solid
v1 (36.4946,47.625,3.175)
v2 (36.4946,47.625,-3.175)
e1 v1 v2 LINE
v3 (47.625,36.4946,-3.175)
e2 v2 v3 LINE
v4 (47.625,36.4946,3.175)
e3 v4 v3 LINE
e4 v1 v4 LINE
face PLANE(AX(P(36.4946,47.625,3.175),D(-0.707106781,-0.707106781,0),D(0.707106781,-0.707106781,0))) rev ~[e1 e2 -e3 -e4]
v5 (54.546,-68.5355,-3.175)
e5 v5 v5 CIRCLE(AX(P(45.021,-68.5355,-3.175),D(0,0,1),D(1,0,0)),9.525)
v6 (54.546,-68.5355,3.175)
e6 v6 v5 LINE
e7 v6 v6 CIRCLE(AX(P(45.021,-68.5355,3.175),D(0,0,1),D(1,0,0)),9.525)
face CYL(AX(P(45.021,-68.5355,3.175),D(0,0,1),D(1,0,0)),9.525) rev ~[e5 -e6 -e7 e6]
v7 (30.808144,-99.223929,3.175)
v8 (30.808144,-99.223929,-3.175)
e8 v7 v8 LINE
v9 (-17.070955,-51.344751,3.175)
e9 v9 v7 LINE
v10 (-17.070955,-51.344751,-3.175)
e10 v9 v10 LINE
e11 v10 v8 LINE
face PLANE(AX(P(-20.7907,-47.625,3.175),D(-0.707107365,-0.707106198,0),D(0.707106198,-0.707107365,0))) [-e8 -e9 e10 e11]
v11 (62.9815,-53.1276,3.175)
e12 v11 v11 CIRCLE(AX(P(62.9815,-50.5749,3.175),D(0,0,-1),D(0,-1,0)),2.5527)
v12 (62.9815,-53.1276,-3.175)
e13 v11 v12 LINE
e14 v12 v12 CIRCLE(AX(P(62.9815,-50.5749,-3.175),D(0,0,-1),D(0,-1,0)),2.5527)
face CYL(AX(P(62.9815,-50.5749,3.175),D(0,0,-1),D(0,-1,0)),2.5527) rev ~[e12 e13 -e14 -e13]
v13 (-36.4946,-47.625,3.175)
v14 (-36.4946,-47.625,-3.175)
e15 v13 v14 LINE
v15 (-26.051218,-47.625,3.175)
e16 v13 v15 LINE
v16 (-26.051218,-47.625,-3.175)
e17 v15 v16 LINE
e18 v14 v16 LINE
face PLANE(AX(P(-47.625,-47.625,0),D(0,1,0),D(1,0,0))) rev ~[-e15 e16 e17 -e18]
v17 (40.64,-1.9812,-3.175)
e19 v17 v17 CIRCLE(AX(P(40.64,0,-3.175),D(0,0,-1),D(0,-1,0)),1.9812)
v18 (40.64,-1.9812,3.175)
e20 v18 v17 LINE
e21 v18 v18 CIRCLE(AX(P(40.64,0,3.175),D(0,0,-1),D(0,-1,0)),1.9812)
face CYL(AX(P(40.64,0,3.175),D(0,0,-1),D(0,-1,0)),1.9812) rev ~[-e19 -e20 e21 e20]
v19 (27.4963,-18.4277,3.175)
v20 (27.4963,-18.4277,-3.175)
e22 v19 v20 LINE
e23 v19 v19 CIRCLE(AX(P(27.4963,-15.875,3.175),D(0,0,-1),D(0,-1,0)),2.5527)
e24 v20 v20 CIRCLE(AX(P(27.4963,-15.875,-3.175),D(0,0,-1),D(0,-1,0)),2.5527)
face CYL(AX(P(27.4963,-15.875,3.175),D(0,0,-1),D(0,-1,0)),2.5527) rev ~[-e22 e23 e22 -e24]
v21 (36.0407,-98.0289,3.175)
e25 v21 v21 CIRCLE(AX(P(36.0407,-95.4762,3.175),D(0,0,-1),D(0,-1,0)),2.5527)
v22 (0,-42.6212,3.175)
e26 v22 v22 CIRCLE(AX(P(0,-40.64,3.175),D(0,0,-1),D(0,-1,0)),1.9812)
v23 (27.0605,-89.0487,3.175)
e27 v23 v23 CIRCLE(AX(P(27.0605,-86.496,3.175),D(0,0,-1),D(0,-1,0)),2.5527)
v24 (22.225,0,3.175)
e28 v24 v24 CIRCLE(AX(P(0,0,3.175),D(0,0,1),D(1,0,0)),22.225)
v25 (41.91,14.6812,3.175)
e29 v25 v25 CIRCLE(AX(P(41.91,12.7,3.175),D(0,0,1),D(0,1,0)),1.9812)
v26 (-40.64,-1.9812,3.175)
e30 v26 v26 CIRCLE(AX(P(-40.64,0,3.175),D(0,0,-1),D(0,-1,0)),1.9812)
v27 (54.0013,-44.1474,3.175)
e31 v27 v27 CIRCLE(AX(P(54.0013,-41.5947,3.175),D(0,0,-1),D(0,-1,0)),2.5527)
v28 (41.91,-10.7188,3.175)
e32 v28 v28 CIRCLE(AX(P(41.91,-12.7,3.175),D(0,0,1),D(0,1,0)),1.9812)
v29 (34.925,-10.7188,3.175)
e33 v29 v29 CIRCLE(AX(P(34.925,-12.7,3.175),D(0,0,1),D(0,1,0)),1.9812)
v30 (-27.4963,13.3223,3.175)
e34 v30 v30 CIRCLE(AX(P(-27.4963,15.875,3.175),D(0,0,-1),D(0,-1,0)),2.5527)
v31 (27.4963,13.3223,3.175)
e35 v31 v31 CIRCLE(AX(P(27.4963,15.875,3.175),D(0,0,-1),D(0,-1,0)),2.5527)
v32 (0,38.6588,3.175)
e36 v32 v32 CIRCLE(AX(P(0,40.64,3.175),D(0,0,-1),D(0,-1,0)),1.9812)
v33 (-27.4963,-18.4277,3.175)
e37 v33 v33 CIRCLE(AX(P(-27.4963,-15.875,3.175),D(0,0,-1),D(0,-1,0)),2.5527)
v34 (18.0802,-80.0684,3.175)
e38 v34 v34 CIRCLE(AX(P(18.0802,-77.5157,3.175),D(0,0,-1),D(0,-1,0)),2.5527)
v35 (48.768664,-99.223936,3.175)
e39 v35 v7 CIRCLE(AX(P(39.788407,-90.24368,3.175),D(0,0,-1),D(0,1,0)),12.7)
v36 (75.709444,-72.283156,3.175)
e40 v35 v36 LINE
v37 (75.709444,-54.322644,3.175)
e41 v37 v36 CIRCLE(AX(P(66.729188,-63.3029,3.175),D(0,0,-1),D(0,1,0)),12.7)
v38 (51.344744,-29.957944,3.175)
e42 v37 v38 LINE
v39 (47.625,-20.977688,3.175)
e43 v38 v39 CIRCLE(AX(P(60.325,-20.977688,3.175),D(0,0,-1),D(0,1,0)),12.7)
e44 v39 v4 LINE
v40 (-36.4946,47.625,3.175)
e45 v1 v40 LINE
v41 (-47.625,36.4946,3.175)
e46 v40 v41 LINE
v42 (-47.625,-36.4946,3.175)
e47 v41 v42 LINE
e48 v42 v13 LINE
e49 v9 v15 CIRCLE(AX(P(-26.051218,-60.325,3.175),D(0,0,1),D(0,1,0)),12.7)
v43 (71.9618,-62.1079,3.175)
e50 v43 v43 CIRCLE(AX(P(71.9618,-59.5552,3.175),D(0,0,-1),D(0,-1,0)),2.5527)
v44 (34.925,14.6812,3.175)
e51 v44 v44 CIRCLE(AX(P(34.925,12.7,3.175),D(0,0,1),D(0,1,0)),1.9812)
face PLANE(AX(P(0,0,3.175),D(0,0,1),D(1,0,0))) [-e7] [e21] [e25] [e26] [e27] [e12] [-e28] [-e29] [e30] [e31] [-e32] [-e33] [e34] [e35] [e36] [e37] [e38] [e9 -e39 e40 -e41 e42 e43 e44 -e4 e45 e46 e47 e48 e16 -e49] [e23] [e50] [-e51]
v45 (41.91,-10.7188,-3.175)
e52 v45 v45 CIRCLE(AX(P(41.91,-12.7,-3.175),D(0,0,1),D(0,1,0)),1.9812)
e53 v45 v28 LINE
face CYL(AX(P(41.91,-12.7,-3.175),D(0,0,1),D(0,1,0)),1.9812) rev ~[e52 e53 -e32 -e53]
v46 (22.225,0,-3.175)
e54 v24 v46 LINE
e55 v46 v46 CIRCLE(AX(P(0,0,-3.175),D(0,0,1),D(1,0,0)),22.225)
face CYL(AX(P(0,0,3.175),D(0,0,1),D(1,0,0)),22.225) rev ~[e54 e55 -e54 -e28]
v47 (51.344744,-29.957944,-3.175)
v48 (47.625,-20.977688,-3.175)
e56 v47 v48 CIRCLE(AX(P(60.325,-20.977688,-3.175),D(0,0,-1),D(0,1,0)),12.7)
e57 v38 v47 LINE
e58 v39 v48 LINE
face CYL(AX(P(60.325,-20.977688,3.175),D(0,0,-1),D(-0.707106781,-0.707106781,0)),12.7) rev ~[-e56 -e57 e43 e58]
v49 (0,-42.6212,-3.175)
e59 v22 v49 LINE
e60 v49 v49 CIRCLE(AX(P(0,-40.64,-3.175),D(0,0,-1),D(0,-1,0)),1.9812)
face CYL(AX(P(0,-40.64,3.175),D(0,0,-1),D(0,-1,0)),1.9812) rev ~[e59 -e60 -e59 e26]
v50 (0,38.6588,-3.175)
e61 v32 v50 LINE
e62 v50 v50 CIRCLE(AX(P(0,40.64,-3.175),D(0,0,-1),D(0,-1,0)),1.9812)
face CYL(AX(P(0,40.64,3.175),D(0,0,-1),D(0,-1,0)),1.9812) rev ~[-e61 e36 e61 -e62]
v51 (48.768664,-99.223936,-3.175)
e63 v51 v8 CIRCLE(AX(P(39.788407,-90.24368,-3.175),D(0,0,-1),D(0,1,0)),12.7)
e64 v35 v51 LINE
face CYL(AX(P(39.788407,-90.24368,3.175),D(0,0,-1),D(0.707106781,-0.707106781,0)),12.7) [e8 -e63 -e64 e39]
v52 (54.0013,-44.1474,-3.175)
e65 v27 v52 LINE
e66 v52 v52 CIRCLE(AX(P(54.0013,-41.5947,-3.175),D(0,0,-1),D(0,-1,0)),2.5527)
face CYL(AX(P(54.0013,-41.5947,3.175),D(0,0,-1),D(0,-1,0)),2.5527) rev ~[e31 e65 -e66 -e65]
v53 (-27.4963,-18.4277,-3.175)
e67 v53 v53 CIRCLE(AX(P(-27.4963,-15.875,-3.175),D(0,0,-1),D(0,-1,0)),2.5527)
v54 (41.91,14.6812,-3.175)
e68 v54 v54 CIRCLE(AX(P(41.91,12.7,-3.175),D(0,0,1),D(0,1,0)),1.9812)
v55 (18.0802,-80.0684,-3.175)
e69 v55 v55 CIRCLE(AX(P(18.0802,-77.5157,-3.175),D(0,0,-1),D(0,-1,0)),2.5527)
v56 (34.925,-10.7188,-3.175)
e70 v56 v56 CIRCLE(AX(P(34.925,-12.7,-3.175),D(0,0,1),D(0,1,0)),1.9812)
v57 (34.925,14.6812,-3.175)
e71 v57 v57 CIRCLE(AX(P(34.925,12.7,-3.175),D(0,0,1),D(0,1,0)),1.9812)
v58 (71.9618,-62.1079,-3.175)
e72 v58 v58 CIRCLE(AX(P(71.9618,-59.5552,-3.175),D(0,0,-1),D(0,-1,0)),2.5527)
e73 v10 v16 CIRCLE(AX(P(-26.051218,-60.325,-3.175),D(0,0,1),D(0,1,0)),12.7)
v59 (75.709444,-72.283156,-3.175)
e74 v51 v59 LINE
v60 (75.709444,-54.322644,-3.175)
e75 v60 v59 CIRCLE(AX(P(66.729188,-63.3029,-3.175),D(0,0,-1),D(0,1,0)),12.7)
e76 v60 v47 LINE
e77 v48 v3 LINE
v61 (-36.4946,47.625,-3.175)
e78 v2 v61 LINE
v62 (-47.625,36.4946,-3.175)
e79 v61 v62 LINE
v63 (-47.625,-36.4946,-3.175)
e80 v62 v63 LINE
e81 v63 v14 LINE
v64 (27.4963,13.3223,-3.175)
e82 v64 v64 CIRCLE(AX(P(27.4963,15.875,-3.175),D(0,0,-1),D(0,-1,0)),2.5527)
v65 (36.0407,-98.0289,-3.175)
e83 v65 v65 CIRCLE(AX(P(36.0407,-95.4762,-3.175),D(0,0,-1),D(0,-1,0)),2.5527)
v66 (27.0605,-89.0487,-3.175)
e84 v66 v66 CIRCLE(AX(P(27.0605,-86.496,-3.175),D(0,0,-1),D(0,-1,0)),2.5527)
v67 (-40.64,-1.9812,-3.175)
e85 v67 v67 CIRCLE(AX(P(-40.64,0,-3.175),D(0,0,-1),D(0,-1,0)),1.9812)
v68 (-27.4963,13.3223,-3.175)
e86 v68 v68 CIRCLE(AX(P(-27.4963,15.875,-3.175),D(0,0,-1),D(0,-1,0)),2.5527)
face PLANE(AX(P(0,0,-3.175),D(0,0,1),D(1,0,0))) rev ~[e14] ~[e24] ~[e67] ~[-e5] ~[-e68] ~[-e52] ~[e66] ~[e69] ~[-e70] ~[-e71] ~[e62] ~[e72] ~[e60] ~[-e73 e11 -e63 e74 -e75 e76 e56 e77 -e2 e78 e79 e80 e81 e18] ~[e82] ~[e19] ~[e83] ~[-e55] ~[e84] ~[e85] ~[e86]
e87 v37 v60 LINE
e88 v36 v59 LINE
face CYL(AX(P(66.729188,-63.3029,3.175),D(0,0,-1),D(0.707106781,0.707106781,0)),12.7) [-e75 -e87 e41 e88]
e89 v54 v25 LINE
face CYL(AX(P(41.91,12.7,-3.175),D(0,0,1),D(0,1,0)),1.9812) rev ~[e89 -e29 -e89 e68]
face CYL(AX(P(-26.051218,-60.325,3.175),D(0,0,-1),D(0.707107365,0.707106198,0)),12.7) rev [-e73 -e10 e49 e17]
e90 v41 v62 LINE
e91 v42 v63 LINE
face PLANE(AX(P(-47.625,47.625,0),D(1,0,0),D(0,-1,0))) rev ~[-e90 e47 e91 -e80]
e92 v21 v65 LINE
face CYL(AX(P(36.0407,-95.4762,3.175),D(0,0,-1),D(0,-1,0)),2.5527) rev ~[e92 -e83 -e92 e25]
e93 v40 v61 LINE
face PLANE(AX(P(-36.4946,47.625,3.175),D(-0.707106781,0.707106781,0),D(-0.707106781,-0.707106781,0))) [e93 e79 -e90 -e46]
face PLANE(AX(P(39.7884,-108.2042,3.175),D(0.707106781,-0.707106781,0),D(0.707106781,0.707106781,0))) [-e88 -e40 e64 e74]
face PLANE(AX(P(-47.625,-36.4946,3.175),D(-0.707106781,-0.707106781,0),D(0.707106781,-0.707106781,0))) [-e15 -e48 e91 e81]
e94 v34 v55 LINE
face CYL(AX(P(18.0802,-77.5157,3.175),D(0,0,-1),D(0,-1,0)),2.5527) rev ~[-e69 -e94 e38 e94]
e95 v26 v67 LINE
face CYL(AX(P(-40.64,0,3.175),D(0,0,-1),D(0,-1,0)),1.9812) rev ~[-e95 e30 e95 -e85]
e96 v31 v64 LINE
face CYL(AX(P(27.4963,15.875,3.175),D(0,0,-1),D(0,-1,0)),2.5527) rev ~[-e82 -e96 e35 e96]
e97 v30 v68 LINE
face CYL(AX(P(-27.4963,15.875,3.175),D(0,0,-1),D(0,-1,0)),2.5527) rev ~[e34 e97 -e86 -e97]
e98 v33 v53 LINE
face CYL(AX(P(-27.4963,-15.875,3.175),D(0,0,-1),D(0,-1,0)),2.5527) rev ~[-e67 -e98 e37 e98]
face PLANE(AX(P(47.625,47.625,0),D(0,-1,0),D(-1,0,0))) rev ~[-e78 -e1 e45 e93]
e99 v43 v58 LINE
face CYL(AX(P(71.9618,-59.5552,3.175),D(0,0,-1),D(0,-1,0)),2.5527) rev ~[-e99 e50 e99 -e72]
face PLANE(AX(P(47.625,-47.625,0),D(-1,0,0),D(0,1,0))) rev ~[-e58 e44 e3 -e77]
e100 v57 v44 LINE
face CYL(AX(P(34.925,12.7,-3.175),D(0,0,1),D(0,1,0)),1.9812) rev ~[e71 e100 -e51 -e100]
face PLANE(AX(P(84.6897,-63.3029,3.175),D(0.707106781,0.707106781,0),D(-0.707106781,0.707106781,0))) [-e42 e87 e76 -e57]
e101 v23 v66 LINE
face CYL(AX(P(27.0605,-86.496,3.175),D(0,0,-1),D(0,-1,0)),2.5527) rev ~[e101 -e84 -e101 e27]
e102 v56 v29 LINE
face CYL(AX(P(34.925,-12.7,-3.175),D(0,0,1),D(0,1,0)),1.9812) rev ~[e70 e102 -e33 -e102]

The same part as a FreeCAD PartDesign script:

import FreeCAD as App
import Part
import Sketcher
from FreeCAD import Vector
Q = App.Units.Quantity


def edges_at(feature, points):
    """Names of the edges that pass closest to the given points."""
    edges = feature.Shape.Edges
    near = lambda p: min(range(len(edges)), key=lambda i: edges[i].distToShape(Part.Vertex(*p))[0])
    return sorted({f"Edge{near(p) + 1}" for p in points})

doc = App.newDocument("Part")
body = doc.addObject("PartDesign::Body", "Body")

# Sketch on XY plane
sketch1 = body.newObject("Sketcher::SketchObject", "Sketch")
sketch1.AttachmentSupport = (doc.getObject("XY_Plane"), [""])
sketch1.MapMode = "FlatFace"
sketch1.addGeometry([
    Part.LineSegment(Vector(-48, 48, 0), Vector(-48, -48, 0)),
    Part.LineSegment(Vector(-48, -48, 0), Vector(48, -48, 0)),
    Part.LineSegment(Vector(48, -48, 0), Vector(48, 48, 0)),
    Part.LineSegment(Vector(48, 48, 0), Vector(-48, 48, 0)),
], False)
sketch1.addConstraint([
    Sketcher.Constraint("Coincident", 0, 2, 1, 1),
    Sketcher.Constraint("Coincident", 1, 2, 2, 1),
    Sketcher.Constraint("Coincident", 2, 2, 3, 1),
    Sketcher.Constraint("Coincident", 3, 2, 0, 1),
    Sketcher.Constraint("Vertical", 0),
    Sketcher.Constraint("Horizontal", 1),
    Sketcher.Constraint("Vertical", 2),
    Sketcher.Constraint("Horizontal", 3),
    Sketcher.Constraint("Symmetric", 0, 2, 2, 2, -1, 1),
    Sketcher.Constraint("Equal", 3, 0),
    Sketcher.Constraint("DistanceX", 1, 1, 1, 2, Q("3.75 in")),
])
pad1 = body.newObject("PartDesign::Pad", "Pad")
pad1.Profile = sketch1
pad1.Length = Q("0.25 in")
pad1.Midplane = True

# Sketch on XY plane
sketch2 = body.newObject("Sketcher::SketchObject", "Sketch001")
sketch2.AttachmentSupport = (doc.getObject("XY_Plane"), [""])
sketch2.MapMode = "FlatFace"
sketch2.AttachmentOffset = App.Placement(Vector(0, 0, 0.125 * 25.4), App.Rotation())
sketch2.addGeometry([
    Part.Circle(Vector(0, 40.6, 0), Vector(0, 0, 1), 2),
    Part.Circle(Vector(-40.6, 0, 0), Vector(0, 0, 1), 2),
    Part.Circle(Vector(0, -40.6, 0), Vector(0, 0, 1), 2),
    Part.Circle(Vector(40.6, 0, 0), Vector(0, 0, 1), 2),
], False)
sketch2.addConstraint([
    Sketcher.Constraint("Equal", 0, 1),
    Sketcher.Constraint("Equal", 1, 2),
    Sketcher.Constraint("Equal", 2, 3),
    Sketcher.Constraint("Symmetric", 0, 3, 2, 3, -1, 1),
    Sketcher.Constraint("Symmetric", 1, 3, 3, 3, -1, 1),
    Sketcher.Constraint("PointOnObject", 0, 3, -2),
    Sketcher.Constraint("PointOnObject", 1, 3, -1),
    Sketcher.Constraint("Diameter", 0, Q("0.156 in")),
    Sketcher.Constraint("DistanceY", -1, 1, 0, 3, Q("1.6 in")),
    Sketcher.Constraint("DistanceX", 1, 3, -1, 1, Q("1.6 in")),
])
doc.recompute()
hole = body.newObject("PartDesign::Hole", "Hole")
hole.Profile = sketch2
hole.ThreadType = "None"
hole.Diameter = Q("0.156 in")
hole.DepthType = "ThroughAll"

# Sketch on XY plane
sketch3 = body.newObject("Sketcher::SketchObject", "Sketch002")
sketch3.AttachmentSupport = (doc.getObject("XY_Plane"), [""])
sketch3.MapMode = "FlatFace"
sketch3.AttachmentOffset = App.Placement(Vector(0, 0, 0.125 * 25.4), App.Rotation())
sketch3.addGeometry([
    Part.Circle(Vector(-27.5, 15.9, 0), Vector(0, 0, 1), 2.6),
    Part.Circle(Vector(-27.5, -15.9, 0), Vector(0, 0, 1), 2.6),
    Part.Circle(Vector(27.5, -15.9, 0), Vector(0, 0, 1), 2.6),
    Part.Circle(Vector(27.5, 15.9, 0), Vector(0, 0, 1), 2.6),
], False)
sketch3.addConstraint([
    Sketcher.Constraint("Equal", 0, 1),
    Sketcher.Constraint("Equal", 1, 2),
    Sketcher.Constraint("Equal", 2, 3),
    Sketcher.Constraint("Symmetric", 0, 3, 2, 3, -1, 1),
    Sketcher.Constraint("Symmetric", 1, 3, 3, 3, -1, 1),
    Sketcher.Constraint("Symmetric", 1, 3, 2, 3, -2),
    Sketcher.Constraint("Diameter", 0, Q("0.201 in")),
    Sketcher.Constraint("DistanceY", 1, 3, 0, 3, Q("1.25 in")),
    Sketcher.Constraint("DistanceX", 0, 3, -1, 1, 27.4963),
])
doc.recompute()
hole2 = body.newObject("PartDesign::Hole", "Hole001")
hole2.Profile = sketch3
hole2.ThreadType = "None"
hole2.Diameter = Q("0.201 in")
hole2.DepthType = "ThroughAll"

# Sketch on XY plane
sketch4 = body.newObject("Sketcher::SketchObject", "Sketch003")
sketch4.AttachmentSupport = (doc.getObject("XY_Plane"), [""])
sketch4.MapMode = "FlatFace"
sketch4.AttachmentOffset = App.Placement(Vector(0, 0, 0.125 * 25.4), App.Rotation())
sketch4.addGeometry(Part.Circle(Vector(0, 0, 0), Vector(0, 0, 1), 22), False)
sketch4.addConstraint([
    Sketcher.Constraint("Coincident", 0, 3, -1, 1),
    Sketcher.Constraint("Diameter", 0, Q("1.75 in")),
])
pocket1 = body.newObject("PartDesign::Pocket", "Pocket")
pocket1.Profile = sketch4
pocket1.Type = "ThroughAll"

# Sketch on XY plane
sketch5 = body.newObject("Sketcher::SketchObject", "Sketch004")
sketch5.AttachmentSupport = (doc.getObject("XY_Plane"), [""])
sketch5.MapMode = "FlatFace"
sketch5.AttachmentOffset = App.Placement(Vector(0, 0, 0.125 * 25.4), App.Rotation())
sketch5.addGeometry([
    Part.LineSegment(Vector(48, -48, 0), Vector(-21, -48, 0)),  # 0
    Part.LineSegment(Vector(-21, -48, 0), Vector(40, -108, 0)),  # 1
    Part.LineSegment(Vector(40, -108, 0), Vector(85, -63, 0)),  # 2
    Part.LineSegment(Vector(85, -63, 0), Vector(48, -26, 0)),  # 3
    Part.LineSegment(Vector(48, -26, 0), Vector(48, -48, 0)),  # 4
    Part.Circle(Vector(45, -69, 0), Vector(0, 0, 1), 10),  # 5
], False)
sketch5.addConstraint([
    Sketcher.Constraint("Coincident", 0, 2, 1, 1),
    Sketcher.Constraint("Coincident", 1, 2, 2, 1),
    Sketcher.Constraint("Coincident", 2, 2, 3, 1),
    Sketcher.Constraint("Coincident", 3, 2, 4, 1),
    Sketcher.Constraint("Coincident", 4, 2, 0, 1),
    Sketcher.Constraint("Horizontal", 0),
    Sketcher.Constraint("Vertical", 4),
    Sketcher.Constraint("Perpendicular", 1, 2),
    Sketcher.Constraint("Perpendicular", 2, 3),
    Sketcher.Constraint("Diameter", 5, Q("0.75 in")),
    Sketcher.Constraint("Angle", 1, Q("-45 deg")),
    Sketcher.Constraint("Distance", 2, Q("2.5 in")),
    Sketcher.Constraint("DistanceY", 4, 2, 4, 1, Q("0.842 in")),
    Sketcher.Constraint("DistanceY", 1, 2, -1, 1, Q("4.26 in")),
    Sketcher.Constraint("DistanceY", 0, 2, -1, 1, Q("1.875 in")),
    Sketcher.Constraint("DistanceX", -1, 1, 3, 2, Q("1.875 in")),
    Sketcher.Constraint("DistanceX", 0, 2, 5, 3, Q("2.591 in")),
    Sketcher.Constraint("DistanceY", 5, 3, 2, 2, Q("0.206 in")),
])
pad2 = body.newObject("PartDesign::Pad", "Pad001")
pad2.Profile = sketch5
pad2.Length = Q("0.25 in")
pad2.Reversed = True

# Sketch on XY plane
sketch6 = body.newObject("Sketcher::SketchObject", "Sketch005")
sketch6.AttachmentSupport = (doc.getObject("XY_Plane"), [""])
sketch6.MapMode = "FlatFace"
sketch6.AttachmentOffset = App.Placement(Vector(0, 0, 0.125 * 25.4), App.Rotation())
sketch6.addGeometry([
    Part.Circle(Vector(18.1, -77.5, 0), Vector(0, 0, 1), 2.6),  # 0
    Part.Circle(Vector(27.1, -86.5, 0), Vector(0, 0, 1), 2.6),  # 1
    Part.Circle(Vector(36, -95.5, 0), Vector(0, 0, 1), 2.6),  # 2
    Part.Circle(Vector(54, -41.6, 0), Vector(0, 0, 1), 2.6),  # 3
    Part.Circle(Vector(72, -59.6, 0), Vector(0, 0, 1), 2.6),  # 4
    Part.Circle(Vector(63, -50.6, 0), Vector(0, 0, 1), 2.6),  # 5
], False)
sketch6.addConstraint([
    Sketcher.Constraint("Equal", 0, 1),
    Sketcher.Constraint("Equal", 1, 2),
    Sketcher.Constraint("Equal", 2, 3),
    Sketcher.Constraint("Equal", 3, 4),
    Sketcher.Constraint("Equal", 4, 5),
    Sketcher.Constraint("Diameter", 0, Q("0.201 in")),
    Sketcher.Constraint("DistanceY", 0, 3, -1, 1, Q("3.0518 in")),
    Sketcher.Constraint("DistanceY", 2, 3, -1, 1, Q("3.7589 in")),
    Sketcher.Constraint("DistanceY", 4, 3, -1, 1, Q("2.3447 in")),
    Sketcher.Constraint("DistanceX", 0, 3, 2, 3, Q("0.7071 in")),
    Sketcher.Constraint("DistanceX", 2, 3, 3, 3, Q("0.7071 in")),
    Sketcher.Constraint("DistanceX", 3, 3, 4, 3, Q("0.7071 in")),
    Sketcher.Constraint("DistanceY", 4, 3, 3, 3, Q("0.7071 in")),
    Sketcher.Constraint("DistanceX", -1, 1, 0, 3, 18.0802),
    Sketcher.Constraint("DistanceX", -1, 1, 1, 3, 27.0605),
    Sketcher.Constraint("DistanceY", 1, 3, -1, 1, 86.496),
    Sketcher.Constraint("DistanceX", -1, 1, 5, 3, 62.9815),
    Sketcher.Constraint("DistanceY", 5, 3, -1, 1, 50.575),
])
doc.recompute()
hole3 = body.newObject("PartDesign::Hole", "Hole002")
hole3.Profile = sketch6
hole3.ThreadType = "None"
hole3.Diameter = Q("0.201 in")
hole3.DepthType = "ThroughAll"
doc.recompute()

fillet = body.newObject("PartDesign::Fillet", "Fillet")
fillet.Base = (hole3, edges_at(hole3, [
    (47.625, -26.238, 0),
    (-20.791, -47.625, 0),
    (39.788, -108.204, 0),
    (84.69, -63.303, 0),
]))
fillet.Radius = Q("0.5 in")

# Sketch on XY plane
sketch7 = body.newObject("Sketcher::SketchObject", "Sketch006")
sketch7.AttachmentSupport = (doc.getObject("XY_Plane"), [""])
sketch7.MapMode = "FlatFace"
sketch7.AttachmentOffset = App.Placement(Vector(0, 0, 0.125 * 25.4), App.Rotation())
sketch7.addGeometry([
    Part.LineSegment(Vector(-48, 36, 0), Vector(-36, 48, 0)),  # 0
    Part.LineSegment(Vector(-36, 48, 0), Vector(-48, 48, 0)),  # 1
    Part.LineSegment(Vector(-48, 48, 0), Vector(-48, 36, 0)),  # 2
    Part.LineSegment(Vector(48, 48, 0), Vector(36, 48, 0)),  # 3
    Part.LineSegment(Vector(36, 48, 0), Vector(48, 36, 0)),  # 4
    Part.LineSegment(Vector(48, 36, 0), Vector(48, 48, 0)),  # 5
    Part.LineSegment(Vector(-36, -48, 0), Vector(-48, -36, 0)),  # 6
    Part.LineSegment(Vector(-48, -36, 0), Vector(-48, -48, 0)),  # 7
    Part.LineSegment(Vector(-48, -48, 0), Vector(-36, -48, 0)),  # 8
], False)
sketch7.addConstraint([
    Sketcher.Constraint("Coincident", 0, 2, 1, 1),
    Sketcher.Constraint("Coincident", 1, 2, 2, 1),
    Sketcher.Constraint("Coincident", 2, 2, 0, 1),
    Sketcher.Constraint("Coincident", 3, 2, 4, 1),
    Sketcher.Constraint("Coincident", 4, 2, 5, 1),
    Sketcher.Constraint("Coincident", 5, 2, 3, 1),
    Sketcher.Constraint("Coincident", 6, 2, 7, 1),
    Sketcher.Constraint("Coincident", 7, 2, 8, 1),
    Sketcher.Constraint("Coincident", 8, 2, 6, 1),
    Sketcher.Constraint("Horizontal", 1),
    Sketcher.Constraint("Vertical", 2),
    Sketcher.Constraint("Horizontal", 3),
    Sketcher.Constraint("Vertical", 5),
    Sketcher.Constraint("Vertical", 7),
    Sketcher.Constraint("Horizontal", 8),
    Sketcher.Constraint("Symmetric", 4, 2, 6, 2, -1, 1),
    Sketcher.Constraint("Symmetric", 3, 2, 8, 2, -1, 1),
    Sketcher.Constraint("Symmetric", 0, 2, 3, 2, -2),
    Sketcher.Constraint("Symmetric", 2, 2, 4, 2, -2),
    Sketcher.Constraint("Perpendicular", 0, 4),
    Sketcher.Constraint("DistanceX", 2, 2, 4, 2, Q("3.75 in")),
    Sketcher.Constraint("DistanceY", 7, 2, 1, 2, Q("3.75 in")),
    Sketcher.Constraint("DistanceX", 1, 2, 1, 1, Q("0.4382 in")),
])
pocket2 = body.newObject("PartDesign::Pocket", "Pocket001")
pocket2.Profile = sketch7
pocket2.Type = "ThroughAll"

# Sketch on XY plane
sketch8 = body.newObject("Sketcher::SketchObject", "Sketch007")
sketch8.AttachmentSupport = (doc.getObject("XY_Plane"), [""])
sketch8.MapMode = "FlatFace"
sketch8.AttachmentOffset = App.Placement(Vector(0, 0, -0.125 * 25.4), App.Rotation())
sketch8.addGeometry([
    Part.Circle(Vector(34.9, -12.7, 0), Vector(0, 0, 1), 2),
    Part.Circle(Vector(34.9, 12.7, 0), Vector(0, 0, 1), 2),
], False)
sketch8.addConstraint([
    Sketcher.Constraint("Equal", 0, 1),
    Sketcher.Constraint("Symmetric", 0, 3, 1, 3, -1),
    Sketcher.Constraint("Diameter", 0, Q("0.156 in")),
    Sketcher.Constraint("DistanceY", 0, 3, 1, 3, Q("1 in")),
    Sketcher.Constraint("DistanceX", -1, 1, 0, 3, Q("1.375 in")),
])
doc.recompute()
hole4 = body.newObject("PartDesign::Hole", "Hole003")
hole4.Profile = sketch8
hole4.ThreadType = "None"
hole4.Diameter = Q("0.156 in")
hole4.DepthType = "ThroughAll"
hole4.Reversed = True

# Sketch on XY plane
sketch9 = body.newObject("Sketcher::SketchObject", "Sketch008")
sketch9.AttachmentSupport = (doc.getObject("XY_Plane"), [""])
sketch9.MapMode = "FlatFace"
sketch9.AttachmentOffset = App.Placement(Vector(0, 0, -0.125 * 25.4), App.Rotation())
sketch9.addGeometry([
    Part.Circle(Vector(41.9, -12.7, 0), Vector(0, 0, 1), 2),
    Part.Circle(Vector(41.9, 12.7, 0), Vector(0, 0, 1), 2),
], False)
sketch9.addConstraint([
    Sketcher.Constraint("Equal", 0, 1),
    Sketcher.Constraint("Symmetric", 0, 3, 1, 3, -1),
    Sketcher.Constraint("Diameter", 0, Q("0.156 in")),
    Sketcher.Constraint("DistanceY", 0, 3, 1, 3, Q("1 in")),
    Sketcher.Constraint("DistanceX", -1, 1, 0, 3, Q("1.65 in")),
])
doc.recompute()
hole5 = body.newObject("PartDesign::Hole", "Hole004")
hole5.Profile = sketch9
hole5.ThreadType = "None"
hole5.Diameter = Q("0.156 in")
hole5.DepthType = "ThroughAll"
hole5.Reversed = True

doc.recompute()
